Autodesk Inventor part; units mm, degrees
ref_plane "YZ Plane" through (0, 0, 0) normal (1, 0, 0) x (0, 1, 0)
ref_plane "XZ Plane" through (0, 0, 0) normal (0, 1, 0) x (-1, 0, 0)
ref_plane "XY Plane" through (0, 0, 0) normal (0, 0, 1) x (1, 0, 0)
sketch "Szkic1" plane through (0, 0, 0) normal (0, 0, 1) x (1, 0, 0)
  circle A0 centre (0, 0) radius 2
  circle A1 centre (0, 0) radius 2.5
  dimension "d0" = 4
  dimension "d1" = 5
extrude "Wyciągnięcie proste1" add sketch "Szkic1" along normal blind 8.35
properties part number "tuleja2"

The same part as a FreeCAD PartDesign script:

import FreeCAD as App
import Part
import Sketcher

V = App.Vector

doc = App.newDocument("Part")
params = doc.addObject("Spreadsheet::Sheet", "Params")
for row, (alias, value) in enumerate([
    ("sketch1_diameter", "5 mm"),
    ("sketch1_diameter2", "4 mm"),
    ("pad1_length", "8.35 mm"),
], start=1):
    params.set(f"A{row}", alias)
    params.set(f"B{row}", "=" + value)
    params.setAlias(f"B{row}", alias)

body = doc.addObject("PartDesign::Body", "Body")

# Sketch on XY plane
sketch1 = body.newObject("Sketcher::SketchObject", "Sketch")
sketch1.AttachmentSupport = (doc.getObject("XY_Plane"), [""])
sketch1.MapMode = "FlatFace"
sketch1.addGeometry([
    Part.Circle(V(0, 0, 0), V(0, 0, 1), 2.5),
    Part.Circle(V(0, 0, 0), V(0, 0, 1), 2),
], False)
sketch1.addConstraint([
    Sketcher.Constraint("Coincident", 0, 3, -1, 1),
    Sketcher.Constraint("Coincident", 1, 3, -1, 1),
    Sketcher.Constraint("Diameter", 0, 5.0),
    Sketcher.Constraint("Diameter", 1, 4.0),
])
sketch1.setExpression("Constraints[2]", "Params.sketch1_diameter")
sketch1.setExpression("Constraints[3]", "Params.sketch1_diameter2")
pad1 = body.newObject("PartDesign::Pad", "Pad")
pad1.Profile = sketch1
pad1.setExpression("Length", "Params.pad1_length")

doc.recompute()
